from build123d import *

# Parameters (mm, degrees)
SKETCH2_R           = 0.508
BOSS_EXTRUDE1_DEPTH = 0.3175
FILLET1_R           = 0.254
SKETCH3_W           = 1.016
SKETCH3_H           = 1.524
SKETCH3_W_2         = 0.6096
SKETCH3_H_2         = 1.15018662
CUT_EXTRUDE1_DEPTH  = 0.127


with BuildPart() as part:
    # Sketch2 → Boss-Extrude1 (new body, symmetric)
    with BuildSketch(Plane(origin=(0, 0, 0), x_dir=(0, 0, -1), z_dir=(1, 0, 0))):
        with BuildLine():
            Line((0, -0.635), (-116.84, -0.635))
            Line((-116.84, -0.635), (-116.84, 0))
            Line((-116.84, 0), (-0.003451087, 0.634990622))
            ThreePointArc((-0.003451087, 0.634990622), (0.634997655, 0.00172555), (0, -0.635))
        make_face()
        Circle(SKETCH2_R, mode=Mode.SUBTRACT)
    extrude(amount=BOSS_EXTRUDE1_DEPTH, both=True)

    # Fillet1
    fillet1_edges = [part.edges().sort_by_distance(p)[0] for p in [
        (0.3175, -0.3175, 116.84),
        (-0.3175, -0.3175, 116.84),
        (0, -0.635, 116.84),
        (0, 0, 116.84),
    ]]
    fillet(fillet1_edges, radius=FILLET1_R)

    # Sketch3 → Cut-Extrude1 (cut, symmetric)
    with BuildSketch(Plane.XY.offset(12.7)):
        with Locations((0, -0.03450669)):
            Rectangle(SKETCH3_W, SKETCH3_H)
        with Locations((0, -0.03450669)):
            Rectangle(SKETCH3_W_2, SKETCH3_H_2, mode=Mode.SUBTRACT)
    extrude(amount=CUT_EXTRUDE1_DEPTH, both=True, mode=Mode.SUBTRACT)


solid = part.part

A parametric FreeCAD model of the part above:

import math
import FreeCAD as App
import Part
import Sketcher
from FreeCAD import Vector
Q = App.Units.Quantity


def edges_at(feature, points):
    """Names of the edges that pass closest to the given points."""
    edges = feature.Shape.Edges
    near = lambda p: min(range(len(edges)), key=lambda i: edges[i].distToShape(Part.Vertex(*p))[0])
    return sorted({f"Edge{near(p) + 1}" for p in points})


def add_polygon(sketch, points):
    """Adds a closed chain of lines whose ends are joined by coincident constraints."""
    first, n = sketch.GeometryCount, len(points)
    for a, b in zip(points, points[1:] + points[:1]):
        sketch.addGeometry(Part.LineSegment(App.Vector(*a, 0), App.Vector(*b, 0)), False)
    for i in range(n):
        sketch.addConstraint(Sketcher.Constraint("Coincident", first + i, 2, first + (i + 1) % n, 1))

doc = App.newDocument("Part")
body = doc.addObject("PartDesign::Body", "Body")

# Sketch on YZ plane
sketch1 = body.newObject("Sketcher::SketchObject", "Sketch")
sketch1.AttachmentSupport = (doc.getObject("YZ_Plane"), [""])
sketch1.MapMode = "FlatFace"
sketch1.addGeometry([
    Part.LineSegment(Vector(-0.6, 116.8, 0), Vector(-0.6, 0, 0)),  # 0
    Part.ArcOfCircle(Part.Circle(Vector(0, 0, 0), Vector(0, 0, 1), 0.6), math.radians(180), math.radians(360)),  # 1
    Part.LineSegment(Vector(0.6, 0, 0), Vector(0, 116.8, 0)),  # 2
    Part.LineSegment(Vector(0, 116.8, 0), Vector(-0.6, 116.8, 0)),  # 3
    Part.Circle(Vector(0, 0, 0), Vector(0, 0, 1), 0.5),  # 4
], False)
sketch1.addConstraint([
    Sketcher.Constraint("Tangent", 0, 2, 1, 1),
    Sketcher.Constraint("Tangent", 1, 2, 2, 1),
    Sketcher.Constraint("Coincident", 2, 2, 3, 1),
    Sketcher.Constraint("Coincident", 3, 2, 0, 1),
    Sketcher.Constraint("Vertical", 0),
    Sketcher.Constraint("Horizontal", 3),
    Sketcher.Constraint("Coincident", 1, 3, -1, 1),
    Sketcher.Constraint("Coincident", 4, 3, -1, 1),
    Sketcher.Constraint("PointOnObject", 2, 2, -2),
    Sketcher.Constraint("Diameter", 4, Q("0.04 in")),
    Sketcher.Constraint("DistanceY", 0, 2, 0, 1, Q("4.6 in")),
    Sketcher.Constraint("Radius", 1, Q("0.025 in")),
])
pad1 = body.newObject("PartDesign::Pad", "Pad")
pad1.Profile = sketch1
pad1.Length = Q("0.025 in")
pad1.Midplane = True
doc.recompute()

fillet = body.newObject("PartDesign::Fillet", "Fillet")
fillet.Base = (pad1, edges_at(pad1, [
    (0.318, -0.318, 116.84),
    (-0.318, -0.318, 116.84),
    (0, -0.635, 116.84),
    (0, 0, 116.84),
]))
fillet.Radius = Q("0.01 in")

# Sketch on XY plane
sketch2 = body.newObject("Sketcher::SketchObject", "Sketch001")
sketch2.AttachmentSupport = (doc.getObject("XY_Plane"), [""])
sketch2.MapMode = "FlatFace"
sketch2.AttachmentOffset = App.Placement(Vector(0, 0, 0.5 * 25.4), App.Rotation())
add_polygon(sketch2, [(-0.5, 0.7), (-0.5, -0.8), (0.5, -0.8), (0.5, 0.7)])  # lines 0-3
add_polygon(sketch2, [(0.3, -0.6), (-0.3, -0.6), (-0.3, 0.5), (0.3, 0.5)])  # lines 4-7
sketch2.addConstraint([
    Sketcher.Constraint("Vertical", 0),
    Sketcher.Constraint("Horizontal", 1),
    Sketcher.Constraint("Vertical", 2),
    Sketcher.Constraint("Horizontal", 3),
    Sketcher.Constraint("Horizontal", 4),
    Sketcher.Constraint("Vertical", 5),
    Sketcher.Constraint("Horizontal", 6),
    Sketcher.Constraint("Vertical", 7),
    Sketcher.Constraint("DistanceX", 1, 1, 1, 2, Q("0.04 in")),
    Sketcher.Constraint("DistanceY", 0, 2, 0, 1, Q("0.06 in")),
    Sketcher.Constraint("DistanceX", 4, 2, 4, 1, Q("0.024 in")),
    Sketcher.Constraint("DistanceX", 0, 2, -1, 1, Q("0.02 in")),
    Sketcher.Constraint("DistanceX", 4, 2, -1, 1, Q("0.012 in")),
    Sketcher.Constraint("DistanceY", 4, 2, -1, 1, Q("0.024 in")),
    Sketcher.Constraint("DistanceY", 5, 1, 5, 2, 1.150187),
    Sketcher.Constraint("DistanceY", 0, 2, -1, 1, 0.796507),
])
pocket1 = body.newObject("PartDesign::Pocket", "Pocket")
pocket1.Profile = sketch2
pocket1.Length = Q("0.01 in")
pocket1.Midplane = True

doc.recompute()
